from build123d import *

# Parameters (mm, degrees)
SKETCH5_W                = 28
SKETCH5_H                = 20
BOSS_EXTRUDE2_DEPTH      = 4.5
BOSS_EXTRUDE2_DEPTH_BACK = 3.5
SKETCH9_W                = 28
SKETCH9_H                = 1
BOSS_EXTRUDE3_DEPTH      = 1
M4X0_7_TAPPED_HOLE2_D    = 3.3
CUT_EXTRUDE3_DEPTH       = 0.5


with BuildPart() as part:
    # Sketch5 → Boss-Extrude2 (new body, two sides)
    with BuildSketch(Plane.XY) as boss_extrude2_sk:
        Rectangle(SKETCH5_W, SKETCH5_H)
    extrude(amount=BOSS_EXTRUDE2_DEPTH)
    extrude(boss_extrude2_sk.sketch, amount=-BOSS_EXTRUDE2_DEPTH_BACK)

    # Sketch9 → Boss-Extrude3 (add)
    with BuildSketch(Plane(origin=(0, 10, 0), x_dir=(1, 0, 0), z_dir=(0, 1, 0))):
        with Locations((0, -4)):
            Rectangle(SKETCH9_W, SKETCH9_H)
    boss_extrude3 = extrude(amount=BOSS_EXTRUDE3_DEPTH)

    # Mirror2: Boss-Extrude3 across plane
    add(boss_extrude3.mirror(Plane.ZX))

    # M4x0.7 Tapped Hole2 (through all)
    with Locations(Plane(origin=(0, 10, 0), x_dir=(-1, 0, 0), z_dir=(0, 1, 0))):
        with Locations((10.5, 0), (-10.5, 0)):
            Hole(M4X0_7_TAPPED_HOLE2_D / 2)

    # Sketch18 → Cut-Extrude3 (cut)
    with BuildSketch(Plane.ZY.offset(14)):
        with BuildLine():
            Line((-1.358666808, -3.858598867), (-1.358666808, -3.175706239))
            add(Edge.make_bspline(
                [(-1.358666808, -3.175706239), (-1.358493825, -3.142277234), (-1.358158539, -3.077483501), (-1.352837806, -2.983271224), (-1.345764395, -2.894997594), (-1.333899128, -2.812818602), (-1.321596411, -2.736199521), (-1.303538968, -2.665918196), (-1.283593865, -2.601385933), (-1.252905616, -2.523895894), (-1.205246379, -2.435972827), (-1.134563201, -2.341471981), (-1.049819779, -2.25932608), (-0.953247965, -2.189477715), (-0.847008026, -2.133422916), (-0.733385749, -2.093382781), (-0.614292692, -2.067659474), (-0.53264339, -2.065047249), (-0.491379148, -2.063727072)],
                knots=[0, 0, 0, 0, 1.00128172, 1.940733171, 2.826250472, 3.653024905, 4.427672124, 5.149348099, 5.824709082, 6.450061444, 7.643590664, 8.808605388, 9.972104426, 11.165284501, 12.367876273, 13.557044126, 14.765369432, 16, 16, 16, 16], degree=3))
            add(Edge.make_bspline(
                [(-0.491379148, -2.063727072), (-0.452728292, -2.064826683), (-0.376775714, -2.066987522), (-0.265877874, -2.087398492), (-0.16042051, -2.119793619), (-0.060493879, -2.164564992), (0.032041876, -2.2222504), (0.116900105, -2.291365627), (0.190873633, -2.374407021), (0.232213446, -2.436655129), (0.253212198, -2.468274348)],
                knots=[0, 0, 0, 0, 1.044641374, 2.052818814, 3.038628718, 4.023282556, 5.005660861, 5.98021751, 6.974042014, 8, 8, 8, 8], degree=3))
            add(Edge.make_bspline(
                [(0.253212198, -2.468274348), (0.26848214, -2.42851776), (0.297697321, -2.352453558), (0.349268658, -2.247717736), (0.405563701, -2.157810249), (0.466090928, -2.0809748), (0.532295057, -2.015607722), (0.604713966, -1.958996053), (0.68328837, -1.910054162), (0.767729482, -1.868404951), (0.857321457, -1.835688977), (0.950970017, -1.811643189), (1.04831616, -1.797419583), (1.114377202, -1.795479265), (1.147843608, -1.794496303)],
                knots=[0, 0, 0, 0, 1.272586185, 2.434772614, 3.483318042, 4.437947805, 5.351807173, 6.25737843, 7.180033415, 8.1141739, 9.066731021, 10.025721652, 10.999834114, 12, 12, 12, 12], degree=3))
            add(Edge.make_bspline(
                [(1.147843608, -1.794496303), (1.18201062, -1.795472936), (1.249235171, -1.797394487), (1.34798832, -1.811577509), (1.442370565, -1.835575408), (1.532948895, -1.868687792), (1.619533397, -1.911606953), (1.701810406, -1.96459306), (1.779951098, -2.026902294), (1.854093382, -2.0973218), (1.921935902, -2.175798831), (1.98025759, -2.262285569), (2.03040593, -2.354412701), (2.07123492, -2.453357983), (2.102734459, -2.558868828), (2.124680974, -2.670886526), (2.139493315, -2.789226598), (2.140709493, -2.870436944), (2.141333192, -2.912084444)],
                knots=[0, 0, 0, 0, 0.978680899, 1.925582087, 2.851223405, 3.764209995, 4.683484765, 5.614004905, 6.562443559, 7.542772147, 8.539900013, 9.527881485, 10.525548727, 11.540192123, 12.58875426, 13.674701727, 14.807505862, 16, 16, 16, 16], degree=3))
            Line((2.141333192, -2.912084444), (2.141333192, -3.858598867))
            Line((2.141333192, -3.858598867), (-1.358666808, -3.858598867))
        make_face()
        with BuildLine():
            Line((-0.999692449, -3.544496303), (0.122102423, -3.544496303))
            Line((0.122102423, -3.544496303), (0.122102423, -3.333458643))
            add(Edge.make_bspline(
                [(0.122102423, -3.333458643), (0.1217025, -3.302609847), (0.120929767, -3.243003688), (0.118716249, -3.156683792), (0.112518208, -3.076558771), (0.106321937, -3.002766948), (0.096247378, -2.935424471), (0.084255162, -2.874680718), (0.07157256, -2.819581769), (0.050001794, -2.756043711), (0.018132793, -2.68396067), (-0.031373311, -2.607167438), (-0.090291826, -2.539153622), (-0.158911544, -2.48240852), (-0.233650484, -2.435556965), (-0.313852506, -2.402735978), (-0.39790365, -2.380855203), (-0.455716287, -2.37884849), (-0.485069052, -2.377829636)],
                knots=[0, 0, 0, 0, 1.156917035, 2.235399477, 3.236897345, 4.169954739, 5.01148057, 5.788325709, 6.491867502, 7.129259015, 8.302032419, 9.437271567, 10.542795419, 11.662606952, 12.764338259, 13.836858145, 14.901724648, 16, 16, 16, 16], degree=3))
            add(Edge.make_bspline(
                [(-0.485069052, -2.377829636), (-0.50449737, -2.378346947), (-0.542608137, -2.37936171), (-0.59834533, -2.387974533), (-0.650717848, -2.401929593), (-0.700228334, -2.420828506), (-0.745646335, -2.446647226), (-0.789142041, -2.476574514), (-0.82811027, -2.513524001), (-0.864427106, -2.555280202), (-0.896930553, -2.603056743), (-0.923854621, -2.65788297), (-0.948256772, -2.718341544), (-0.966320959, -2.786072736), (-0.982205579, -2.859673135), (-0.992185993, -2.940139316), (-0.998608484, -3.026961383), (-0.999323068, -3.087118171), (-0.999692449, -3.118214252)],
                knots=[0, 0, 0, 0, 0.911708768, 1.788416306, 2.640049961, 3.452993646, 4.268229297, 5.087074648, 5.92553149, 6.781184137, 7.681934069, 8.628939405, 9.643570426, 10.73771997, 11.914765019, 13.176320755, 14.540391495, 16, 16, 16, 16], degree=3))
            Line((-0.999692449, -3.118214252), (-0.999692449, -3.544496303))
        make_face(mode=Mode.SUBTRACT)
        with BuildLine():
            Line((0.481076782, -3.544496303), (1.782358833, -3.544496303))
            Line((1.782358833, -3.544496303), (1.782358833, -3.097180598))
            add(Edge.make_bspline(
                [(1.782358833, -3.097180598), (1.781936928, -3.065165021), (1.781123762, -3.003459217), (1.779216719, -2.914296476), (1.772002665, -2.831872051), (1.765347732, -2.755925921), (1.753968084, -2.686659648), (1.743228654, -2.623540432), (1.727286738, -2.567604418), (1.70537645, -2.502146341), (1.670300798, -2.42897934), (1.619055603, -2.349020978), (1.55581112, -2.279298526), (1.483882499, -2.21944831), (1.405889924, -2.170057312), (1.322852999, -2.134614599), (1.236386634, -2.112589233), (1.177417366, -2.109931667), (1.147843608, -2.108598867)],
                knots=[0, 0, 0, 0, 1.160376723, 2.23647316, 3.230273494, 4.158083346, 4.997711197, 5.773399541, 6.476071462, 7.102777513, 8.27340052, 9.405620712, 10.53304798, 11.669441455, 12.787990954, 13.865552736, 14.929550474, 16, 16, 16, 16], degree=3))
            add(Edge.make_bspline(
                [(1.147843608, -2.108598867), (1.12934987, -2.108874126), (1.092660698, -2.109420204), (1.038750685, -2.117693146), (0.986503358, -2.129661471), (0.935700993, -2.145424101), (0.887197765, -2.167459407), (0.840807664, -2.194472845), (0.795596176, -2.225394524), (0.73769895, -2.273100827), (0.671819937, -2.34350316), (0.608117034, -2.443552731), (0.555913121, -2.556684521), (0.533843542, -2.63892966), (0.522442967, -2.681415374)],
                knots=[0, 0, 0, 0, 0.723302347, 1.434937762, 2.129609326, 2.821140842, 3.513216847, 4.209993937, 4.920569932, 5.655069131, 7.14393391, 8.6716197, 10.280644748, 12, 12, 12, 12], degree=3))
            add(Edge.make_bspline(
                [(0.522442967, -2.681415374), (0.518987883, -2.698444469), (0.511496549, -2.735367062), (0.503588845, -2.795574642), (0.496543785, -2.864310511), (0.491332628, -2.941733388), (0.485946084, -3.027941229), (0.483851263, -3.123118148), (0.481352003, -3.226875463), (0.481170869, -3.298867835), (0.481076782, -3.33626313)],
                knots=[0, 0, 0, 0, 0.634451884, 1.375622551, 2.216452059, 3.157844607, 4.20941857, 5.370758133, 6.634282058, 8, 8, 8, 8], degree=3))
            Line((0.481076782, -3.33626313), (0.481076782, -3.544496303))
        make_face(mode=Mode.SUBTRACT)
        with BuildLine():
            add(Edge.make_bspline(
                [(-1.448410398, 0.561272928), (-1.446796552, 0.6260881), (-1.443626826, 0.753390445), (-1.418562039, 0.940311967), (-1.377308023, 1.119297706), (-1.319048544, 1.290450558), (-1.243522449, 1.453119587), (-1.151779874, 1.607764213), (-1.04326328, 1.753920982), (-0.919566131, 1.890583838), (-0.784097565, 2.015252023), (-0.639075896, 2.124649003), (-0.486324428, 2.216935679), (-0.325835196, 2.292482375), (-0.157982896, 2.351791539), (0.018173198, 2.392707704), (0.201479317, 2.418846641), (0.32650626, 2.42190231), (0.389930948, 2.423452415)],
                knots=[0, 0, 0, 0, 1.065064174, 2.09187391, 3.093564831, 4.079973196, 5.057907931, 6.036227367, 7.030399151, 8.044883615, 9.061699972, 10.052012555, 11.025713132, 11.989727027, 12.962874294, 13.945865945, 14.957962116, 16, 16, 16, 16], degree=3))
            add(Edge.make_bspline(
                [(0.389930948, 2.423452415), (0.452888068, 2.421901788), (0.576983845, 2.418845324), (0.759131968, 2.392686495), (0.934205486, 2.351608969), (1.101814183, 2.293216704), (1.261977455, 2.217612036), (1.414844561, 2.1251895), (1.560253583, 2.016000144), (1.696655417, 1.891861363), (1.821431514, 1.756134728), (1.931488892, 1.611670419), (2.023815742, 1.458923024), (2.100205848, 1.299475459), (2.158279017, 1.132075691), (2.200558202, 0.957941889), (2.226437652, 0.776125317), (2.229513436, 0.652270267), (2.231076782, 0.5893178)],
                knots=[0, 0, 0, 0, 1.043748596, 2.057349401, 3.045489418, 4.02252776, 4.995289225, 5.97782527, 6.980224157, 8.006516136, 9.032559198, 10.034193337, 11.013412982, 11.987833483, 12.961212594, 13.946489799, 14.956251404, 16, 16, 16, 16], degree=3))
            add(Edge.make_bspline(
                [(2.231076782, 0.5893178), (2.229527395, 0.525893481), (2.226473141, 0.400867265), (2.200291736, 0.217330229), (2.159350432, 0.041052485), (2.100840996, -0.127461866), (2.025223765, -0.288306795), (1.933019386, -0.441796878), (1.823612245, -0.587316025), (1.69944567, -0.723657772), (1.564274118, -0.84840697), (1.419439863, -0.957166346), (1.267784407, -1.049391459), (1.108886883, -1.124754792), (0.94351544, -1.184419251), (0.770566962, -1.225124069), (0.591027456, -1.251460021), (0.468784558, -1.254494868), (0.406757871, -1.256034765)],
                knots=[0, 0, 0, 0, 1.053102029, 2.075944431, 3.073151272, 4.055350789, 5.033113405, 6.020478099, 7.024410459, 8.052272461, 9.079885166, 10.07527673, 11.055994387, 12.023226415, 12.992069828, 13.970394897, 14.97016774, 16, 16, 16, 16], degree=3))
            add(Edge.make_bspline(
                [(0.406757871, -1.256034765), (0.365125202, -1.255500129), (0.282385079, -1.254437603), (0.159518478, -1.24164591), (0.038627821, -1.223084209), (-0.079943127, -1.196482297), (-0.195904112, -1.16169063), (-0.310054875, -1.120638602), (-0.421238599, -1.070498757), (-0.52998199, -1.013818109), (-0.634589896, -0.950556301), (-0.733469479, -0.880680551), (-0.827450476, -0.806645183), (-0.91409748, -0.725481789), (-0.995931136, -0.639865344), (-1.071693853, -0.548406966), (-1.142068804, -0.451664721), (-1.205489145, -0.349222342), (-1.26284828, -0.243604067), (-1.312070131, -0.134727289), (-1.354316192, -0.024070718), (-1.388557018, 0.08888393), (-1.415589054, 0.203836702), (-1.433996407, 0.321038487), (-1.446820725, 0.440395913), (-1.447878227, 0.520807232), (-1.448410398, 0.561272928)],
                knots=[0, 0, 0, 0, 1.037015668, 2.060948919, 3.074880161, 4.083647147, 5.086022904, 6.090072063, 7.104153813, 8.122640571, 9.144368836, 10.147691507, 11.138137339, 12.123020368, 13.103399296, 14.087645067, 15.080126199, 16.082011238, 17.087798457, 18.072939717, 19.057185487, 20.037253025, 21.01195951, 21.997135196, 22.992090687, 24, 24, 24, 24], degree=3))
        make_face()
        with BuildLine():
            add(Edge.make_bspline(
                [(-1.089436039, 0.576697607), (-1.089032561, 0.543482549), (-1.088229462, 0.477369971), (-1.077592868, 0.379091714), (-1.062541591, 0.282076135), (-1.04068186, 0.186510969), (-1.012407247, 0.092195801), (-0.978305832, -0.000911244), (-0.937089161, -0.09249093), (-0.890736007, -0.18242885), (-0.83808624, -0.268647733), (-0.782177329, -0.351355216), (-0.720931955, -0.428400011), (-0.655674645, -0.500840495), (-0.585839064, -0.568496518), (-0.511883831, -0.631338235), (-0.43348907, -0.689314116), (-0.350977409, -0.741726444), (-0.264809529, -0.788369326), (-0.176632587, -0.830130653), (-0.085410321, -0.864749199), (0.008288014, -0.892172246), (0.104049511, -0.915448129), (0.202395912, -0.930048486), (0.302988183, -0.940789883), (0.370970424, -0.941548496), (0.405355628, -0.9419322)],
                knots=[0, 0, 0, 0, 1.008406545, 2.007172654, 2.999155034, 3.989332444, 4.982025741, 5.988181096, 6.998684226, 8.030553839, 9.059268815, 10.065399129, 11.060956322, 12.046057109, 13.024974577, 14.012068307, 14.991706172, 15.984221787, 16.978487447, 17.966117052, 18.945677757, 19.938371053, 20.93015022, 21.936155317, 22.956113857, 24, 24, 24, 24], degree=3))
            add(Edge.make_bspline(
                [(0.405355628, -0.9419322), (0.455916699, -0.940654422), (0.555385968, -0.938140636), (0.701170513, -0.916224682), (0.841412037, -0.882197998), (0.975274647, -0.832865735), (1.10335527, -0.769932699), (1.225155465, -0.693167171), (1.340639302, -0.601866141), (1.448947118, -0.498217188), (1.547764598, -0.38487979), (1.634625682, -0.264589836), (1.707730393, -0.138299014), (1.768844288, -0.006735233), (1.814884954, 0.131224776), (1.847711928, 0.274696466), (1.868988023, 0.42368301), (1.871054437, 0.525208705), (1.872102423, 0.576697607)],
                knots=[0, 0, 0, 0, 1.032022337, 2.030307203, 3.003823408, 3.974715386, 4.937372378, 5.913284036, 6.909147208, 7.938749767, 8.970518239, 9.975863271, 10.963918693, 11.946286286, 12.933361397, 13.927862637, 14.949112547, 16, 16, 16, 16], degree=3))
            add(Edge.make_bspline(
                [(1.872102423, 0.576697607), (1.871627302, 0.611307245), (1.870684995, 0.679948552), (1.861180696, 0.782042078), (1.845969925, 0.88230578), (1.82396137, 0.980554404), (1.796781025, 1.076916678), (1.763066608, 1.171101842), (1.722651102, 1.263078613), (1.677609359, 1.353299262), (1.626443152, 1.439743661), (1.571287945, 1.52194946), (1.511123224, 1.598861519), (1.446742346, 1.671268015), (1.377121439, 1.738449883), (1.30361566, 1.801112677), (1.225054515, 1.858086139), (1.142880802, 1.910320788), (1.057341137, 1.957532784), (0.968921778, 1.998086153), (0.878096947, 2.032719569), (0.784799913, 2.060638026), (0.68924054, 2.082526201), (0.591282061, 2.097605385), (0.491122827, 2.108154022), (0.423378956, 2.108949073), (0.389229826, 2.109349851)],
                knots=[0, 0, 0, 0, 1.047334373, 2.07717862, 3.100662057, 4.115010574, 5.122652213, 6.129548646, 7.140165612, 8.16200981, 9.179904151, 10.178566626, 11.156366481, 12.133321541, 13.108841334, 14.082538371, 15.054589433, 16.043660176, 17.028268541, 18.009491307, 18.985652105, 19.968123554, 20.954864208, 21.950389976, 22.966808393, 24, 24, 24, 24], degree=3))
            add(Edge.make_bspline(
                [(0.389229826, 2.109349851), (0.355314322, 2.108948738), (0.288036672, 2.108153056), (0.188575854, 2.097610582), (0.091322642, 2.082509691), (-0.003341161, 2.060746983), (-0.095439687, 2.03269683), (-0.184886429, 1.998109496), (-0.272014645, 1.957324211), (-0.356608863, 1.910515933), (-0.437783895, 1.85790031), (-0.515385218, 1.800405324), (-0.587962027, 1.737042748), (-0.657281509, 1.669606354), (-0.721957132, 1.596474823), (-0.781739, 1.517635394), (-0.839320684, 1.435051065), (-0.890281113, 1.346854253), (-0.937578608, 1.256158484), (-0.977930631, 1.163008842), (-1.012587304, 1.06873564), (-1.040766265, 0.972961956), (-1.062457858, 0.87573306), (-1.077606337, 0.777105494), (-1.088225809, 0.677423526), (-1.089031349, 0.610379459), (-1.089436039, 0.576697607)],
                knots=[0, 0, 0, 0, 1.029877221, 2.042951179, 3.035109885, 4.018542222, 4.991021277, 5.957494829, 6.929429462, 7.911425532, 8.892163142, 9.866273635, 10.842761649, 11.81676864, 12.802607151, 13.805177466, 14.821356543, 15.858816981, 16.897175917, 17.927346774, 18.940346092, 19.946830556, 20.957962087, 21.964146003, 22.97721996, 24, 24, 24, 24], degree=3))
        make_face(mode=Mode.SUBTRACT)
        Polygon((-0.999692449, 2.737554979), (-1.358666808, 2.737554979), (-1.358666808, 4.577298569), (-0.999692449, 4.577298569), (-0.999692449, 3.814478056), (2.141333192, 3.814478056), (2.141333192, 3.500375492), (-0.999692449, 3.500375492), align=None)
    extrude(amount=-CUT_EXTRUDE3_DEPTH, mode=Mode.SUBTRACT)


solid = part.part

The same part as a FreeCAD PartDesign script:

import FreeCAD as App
import Part
import Sketcher


def add_polygon(sketch, points):
    """Adds a closed chain of lines whose ends are joined by coincident constraints."""
    first, n = sketch.GeometryCount, len(points)
    for a, b in zip(points, points[1:] + points[:1]):
        sketch.addGeometry(Part.LineSegment(App.Vector(*a, 0), App.Vector(*b, 0)), False)
    for i in range(n):
        sketch.addConstraint(Sketcher.Constraint("Coincident", first + i, 2, first + (i + 1) % n, 1))

doc = App.newDocument("Part")
body = doc.addObject("PartDesign::Body", "Body")

# Sketch on XY plane
sketch1 = body.newObject("Sketcher::SketchObject", "Sketch")
sketch1.AttachmentSupport = (doc.getObject("XY_Plane"), [""])
sketch1.MapMode = "FlatFace"
add_polygon(sketch1, [(-14, 10), (-14, -10), (14, -10), (14, 10)])  # lines 0-3
sketch1.addConstraint([
    Sketcher.Constraint("Vertical", 0),
    Sketcher.Constraint("Horizontal", 1),
    Sketcher.Constraint("Vertical", 2),
    Sketcher.Constraint("Horizontal", 3),
    Sketcher.Constraint("Symmetric", 0, 2, 2, 2, -1, 1),
    Sketcher.Constraint("DistanceX", 1, 1, 1, 2, 28.0),
    Sketcher.Constraint("DistanceY", 0, 2, 0, 1, 20.0),
])
pad1 = body.newObject("PartDesign::Pad", "Pad")
pad1.Profile = sketch1
pad1.Type = "TwoLengths"
pad1.Length = 4.5
pad1.Length2 = 3.5

# Sketch on XZ plane
sketch2 = body.newObject("Sketcher::SketchObject", "Sketch001")
sketch2.AttachmentSupport = (doc.getObject("XZ_Plane"), [""])
sketch2.MapMode = "FlatFace"
sketch2.AttachmentOffset = App.Placement(App.Vector(0, 0, -10), App.Rotation())
add_polygon(sketch2, [(-14, 3.5), (-14, 4.5), (14, 4.5), (14, 3.5)])  # lines 0-3
sketch2.addConstraint([
    Sketcher.Constraint("Vertical", 0),
    Sketcher.Constraint("Horizontal", 1),
    Sketcher.Constraint("Vertical", 2),
    Sketcher.Constraint("Horizontal", 3),
    Sketcher.Constraint("DistanceX", 1, 1, 1, 2, 28.0),
    Sketcher.Constraint("DistanceY", 0, 1, 0, 2, 1.0),
    Sketcher.Constraint("DistanceX", 0, 2, -1, 1, 14.0),
    Sketcher.Constraint("DistanceY", -1, 1, 0, 2, 4.5),
])
pad2 = body.newObject("PartDesign::Pad", "Pad001")
pad2.Profile = sketch2
pad2.Length = 1
pad2.Reversed = True
doc.recompute()

mirrored = body.newObject("PartDesign::Mirrored", "Mirrored")
mirrored.Originals = [pad2]
mirrored.MirrorPlane = (doc.getObject("XZ_Plane"), [""])
body.Tip = mirrored

# Sketch on XZ plane
sketch3 = body.newObject("Sketcher::SketchObject", "Sketch002")
sketch3.AttachmentSupport = (doc.getObject("XZ_Plane"), [""])
sketch3.MapMode = "FlatFace"
sketch3.AttachmentOffset = App.Placement(App.Vector(0, 0, -10), App.Rotation())
sketch3.addGeometry([
    Part.Circle(App.Vector(-10.5, 0, 0), App.Vector(0, 0, 1), 1.6),
    Part.Circle(App.Vector(10.5, 0, 0), App.Vector(0, 0, 1), 1.6),
], False)
sketch3.addConstraint([
    Sketcher.Constraint("Equal", 0, 1),
    Sketcher.Constraint("Symmetric", 0, 3, 1, 3, -1, 1),
    Sketcher.Constraint("PointOnObject", 0, 3, -1),
    Sketcher.Constraint("Diameter", 0, 3.3),
    Sketcher.Constraint("DistanceX", 0, 3, 1, 3, 21.0),
])
doc.recompute()
hole = body.newObject("PartDesign::Hole", "Hole")
hole.Profile = sketch3
hole.ThreadType = "None"
hole.Diameter = 3.3
hole.DepthType = "ThroughAll"
hole.Reversed = True

# Sketch on YZ plane
sketch4 = body.newObject("Sketcher::SketchObject", "Sketch003")
sketch4.AttachmentSupport = (doc.getObject("YZ_Plane"), [""])
sketch4.MapMode = "FlatFace"
sketch4.AttachmentOffset = App.Placement(App.Vector(0, 0, -14), App.Rotation())
sketch4.addGeometry(Part.LineSegment(App.Vector(-3.175706, -1.358667, 0), App.Vector(-3.858599, -1.358667, 0)), False)  # 0
sketch4.addGeometry(Part.LineSegment(App.Vector(-3.858599, -1.358667, 0), App.Vector(-3.858599, 2.141333, 0)), False)  # 1
sketch4.addGeometry(Part.LineSegment(App.Vector(-3.858599, 2.141333, 0), App.Vector(-2.912084, 2.141333, 0)), False)  # 2
sketch4.addGeometry(Part.BSplineCurve([App.Vector(-1.794496, 1.147844, 0), App.Vector(-1.795473, 1.182011, 0), App.Vector(-1.797394, 1.249235, 0), App.Vector(-1.811578, 1.347988, 0), App.Vector(-1.835575, 1.442371, 0), App.Vector(-1.868688, 1.532949, 0), App.Vector(-1.911607, 1.619533, 0), App.Vector(-1.964593, 1.70181, 0), App.Vector(-2.026902, 1.779951, 0), App.Vector(-2.097322, 1.854093, 0), App.Vector(-2.175799, 1.921936, 0), App.Vector(-2.262286, 1.980258, 0), App.Vector(-2.354413, 2.030406, 0), App.Vector(-2.453358, 2.071235, 0), App.Vector(-2.558869, 2.102734, 0), App.Vector(-2.670887, 2.124681, 0), App.Vector(-2.789227, 2.139493, 0), App.Vector(-2.870437, 2.140709, 0), App.Vector(-2.912084, 2.141333, 0)], [4, 1, 1, 1, 1, 1, 1, 1, 1, 1, 1, 1, 1, 1, 1, 1, 4], [0, 0.978680899, 1.925582087, 2.851223405, 3.764209995, 4.683484765, 5.614004905, 6.562443559, 7.542772147, 8.539900013, 9.527881485, 10.525548727, 11.540192123, 12.58875426, 13.674701727, 14.807505862, 16], False, 3, [1, 1, 1, 1, 1, 1, 1, 1, 1, 1, 1, 1, 1, 1, 1, 1, 1, 1, 1], False), False)  # 3
sketch4.addGeometry(Part.BSplineCurve([App.Vector(-2.468274, 0.253212, 0), App.Vector(-2.428518, 0.268482, 0), App.Vector(-2.352454, 0.297697, 0), App.Vector(-2.247718, 0.349269, 0), App.Vector(-2.15781, 0.405564, 0), App.Vector(-2.080975, 0.466091, 0), App.Vector(-2.015608, 0.532295, 0), App.Vector(-1.958996, 0.604714, 0), App.Vector(-1.910054, 0.683288, 0), App.Vector(-1.868405, 0.767729, 0), App.Vector(-1.835689, 0.857321, 0), App.Vector(-1.811643, 0.95097, 0), App.Vector(-1.79742, 1.048316, 0), App.Vector(-1.795479, 1.114377, 0), App.Vector(-1.794496, 1.147844, 0)], [4, 1, 1, 1, 1, 1, 1, 1, 1, 1, 1, 1, 4], [0, 1.272586185, 2.434772614, 3.483318042, 4.437947805, 5.351807173, 6.25737843, 7.180033415, 8.1141739, 9.066731021, 10.025721652, 10.999834114, 12], False, 3, [1, 1, 1, 1, 1, 1, 1, 1, 1, 1, 1, 1, 1, 1, 1], False), False)  # 4
sketch4.addGeometry(Part.BSplineCurve([App.Vector(-2.063727, -0.491379, 0), App.Vector(-2.064827, -0.452728, 0), App.Vector(-2.066988, -0.376776, 0), App.Vector(-2.087398, -0.265878, 0), App.Vector(-2.119794, -0.160421, 0), App.Vector(-2.164565, -0.060494, 0), App.Vector(-2.22225, 0.032042, 0), App.Vector(-2.291366, 0.1169, 0), App.Vector(-2.374407, 0.190874, 0), App.Vector(-2.436655, 0.232213, 0), App.Vector(-2.468274, 0.253212, 0)], [4, 1, 1, 1, 1, 1, 1, 1, 4], [0, 1.044641374, 2.052818814, 3.038628718, 4.023282556, 5.005660861, 5.98021751, 6.974042014, 8], False, 3, [1, 1, 1, 1, 1, 1, 1, 1, 1, 1, 1], False), False)  # 5
sketch4.addGeometry(Part.BSplineCurve([App.Vector(-3.175706, -1.358667, 0), App.Vector(-3.142277, -1.358494, 0), App.Vector(-3.077484, -1.358159, 0), App.Vector(-2.983271, -1.352838, 0), App.Vector(-2.894998, -1.345764, 0), App.Vector(-2.812819, -1.333899, 0), App.Vector(-2.7362, -1.321596, 0), App.Vector(-2.665918, -1.303539, 0), App.Vector(-2.601386, -1.283594, 0), App.Vector(-2.523896, -1.252906, 0), App.Vector(-2.435973, -1.205246, 0), App.Vector(-2.341472, -1.134563, 0), App.Vector(-2.259326, -1.04982, 0), App.Vector(-2.189478, -0.953248, 0), App.Vector(-2.133423, -0.847008, 0), App.Vector(-2.093383, -0.733386, 0), App.Vector(-2.067659, -0.614293, 0), App.Vector(-2.065047, -0.532643, 0), App.Vector(-2.063727, -0.491379, 0)], [4, 1, 1, 1, 1, 1, 1, 1, 1, 1, 1, 1, 1, 1, 1, 1, 4], [0, 1.00128172, 1.940733171, 2.826250472, 3.653024905, 4.427672124, 5.149348099, 5.824709082, 6.450061444, 7.643590664, 8.808605388, 9.972104426, 11.165284501, 12.367876273, 13.557044126, 14.765369432, 16], False, 3, [1, 1, 1, 1, 1, 1, 1, 1, 1, 1, 1, 1, 1, 1, 1, 1, 1, 1, 1], False), False)  # 6
sketch4.addGeometry(Part.LineSegment(App.Vector(-3.544496, -0.999692, 0), App.Vector(-3.118214, -0.999692, 0)), False)  # 7
sketch4.addGeometry(Part.BSplineCurve([App.Vector(-2.37783, -0.485069, 0), App.Vector(-2.378347, -0.504497, 0), App.Vector(-2.379362, -0.542608, 0), App.Vector(-2.387975, -0.598345, 0), App.Vector(-2.40193, -0.650718, 0), App.Vector(-2.420829, -0.700228, 0), App.Vector(-2.446647, -0.745646, 0), App.Vector(-2.476575, -0.789142, 0), App.Vector(-2.513524, -0.82811, 0), App.Vector(-2.55528, -0.864427, 0), App.Vector(-2.603057, -0.896931, 0), App.Vector(-2.657883, -0.923855, 0), App.Vector(-2.718342, -0.948257, 0), App.Vector(-2.786073, -0.966321, 0), App.Vector(-2.859673, -0.982206, 0), App.Vector(-2.940139, -0.992186, 0), App.Vector(-3.026961, -0.998608, 0), App.Vector(-3.087118, -0.999323, 0), App.Vector(-3.118214, -0.999692, 0)], [4, 1, 1, 1, 1, 1, 1, 1, 1, 1, 1, 1, 1, 1, 1, 1, 4], [0, 0.911708768, 1.788416306, 2.640049961, 3.452993646, 4.268229297, 5.087074648, 5.92553149, 6.781184137, 7.681934069, 8.628939405, 9.643570426, 10.73771997, 11.914765019, 13.176320755, 14.540391495, 16], False, 3, [1, 1, 1, 1, 1, 1, 1, 1, 1, 1, 1, 1, 1, 1, 1, 1, 1, 1, 1], False), False)  # 8
sketch4.addGeometry(Part.BSplineCurve([App.Vector(-3.333459, 0.122102, 0), App.Vector(-3.30261, 0.121703, 0), App.Vector(-3.243004, 0.12093, 0), App.Vector(-3.156684, 0.118716, 0), App.Vector(-3.076559, 0.112518, 0), App.Vector(-3.002767, 0.106322, 0), App.Vector(-2.935424, 0.096247, 0), App.Vector(-2.874681, 0.084255, 0), App.Vector(-2.819582, 0.071573, 0), App.Vector(-2.756044, 0.050002, 0), App.Vector(-2.683961, 0.018133, 0), App.Vector(-2.607167, -0.031373, 0), App.Vector(-2.539154, -0.090292, 0), App.Vector(-2.482409, -0.158912, 0), App.Vector(-2.435557, -0.23365, 0), App.Vector(-2.402736, -0.313853, 0), App.Vector(-2.380855, -0.397904, 0), App.Vector(-2.378848, -0.455716, 0), App.Vector(-2.37783, -0.485069, 0)], [4, 1, 1, 1, 1, 1, 1, 1, 1, 1, 1, 1, 1, 1, 1, 1, 4], [0, 1.156917035, 2.235399477, 3.236897345, 4.169954739, 5.01148057, 5.788325709, 6.491867502, 7.129259015, 8.302032419, 9.437271567, 10.542795419, 11.662606952, 12.764338259, 13.836858145, 14.901724648, 16], False, 3, [1, 1, 1, 1, 1, 1, 1, 1, 1, 1, 1, 1, 1, 1, 1, 1, 1, 1, 1], False), False)  # 9
sketch4.addGeometry(Part.LineSegment(App.Vector(-3.333459, 0.122102, 0), App.Vector(-3.544496, 0.122102, 0)), False)  # 10
sketch4.addGeometry(Part.LineSegment(App.Vector(-3.544496, 0.122102, 0), App.Vector(-3.544496, -0.999692, 0)), False)  # 11
sketch4.addGeometry(Part.LineSegment(App.Vector(-3.544496, 0.481077, 0), App.Vector(-3.336263, 0.481077, 0)), False)  # 12
sketch4.addGeometry(Part.BSplineCurve([App.Vector(-2.681415, 0.522443, 0), App.Vector(-2.698444, 0.518988, 0), App.Vector(-2.735367, 0.511497, 0), App.Vector(-2.795575, 0.503589, 0), App.Vector(-2.864311, 0.496544, 0), App.Vector(-2.941733, 0.491333, 0), App.Vector(-3.027941, 0.485946, 0), App.Vector(-3.123118, 0.483851, 0), App.Vector(-3.226875, 0.481352, 0), App.Vector(-3.298868, 0.481171, 0), App.Vector(-3.336263, 0.481077, 0)], [4, 1, 1, 1, 1, 1, 1, 1, 4], [0, 0.634451884, 1.375622551, 2.216452059, 3.157844607, 4.20941857, 5.370758133, 6.634282058, 8], False, 3, [1, 1, 1, 1, 1, 1, 1, 1, 1, 1, 1], False), False)  # 13
sketch4.addGeometry(Part.BSplineCurve([App.Vector(-2.108599, 1.147844, 0), App.Vector(-2.108874, 1.12935, 0), App.Vector(-2.10942, 1.092661, 0), App.Vector(-2.117693, 1.038751, 0), App.Vector(-2.129661, 0.986503, 0), App.Vector(-2.145424, 0.935701, 0), App.Vector(-2.167459, 0.887198, 0), App.Vector(-2.194473, 0.840808, 0), App.Vector(-2.225395, 0.795596, 0), App.Vector(-2.273101, 0.737699, 0), App.Vector(-2.343503, 0.67182, 0), App.Vector(-2.443553, 0.608117, 0), App.Vector(-2.556685, 0.555913, 0), App.Vector(-2.63893, 0.533844, 0), App.Vector(-2.681415, 0.522443, 0)], [4, 1, 1, 1, 1, 1, 1, 1, 1, 1, 1, 1, 4], [0, 0.723302347, 1.434937762, 2.129609326, 2.821140842, 3.513216847, 4.209993937, 4.920569932, 5.655069131, 7.14393391, 8.6716197, 10.280644748, 12], False, 3, [1, 1, 1, 1, 1, 1, 1, 1, 1, 1, 1, 1, 1, 1, 1], False), False)  # 14
sketch4.addGeometry(Part.BSplineCurve([App.Vector(-3.097181, 1.782359, 0), App.Vector(-3.065165, 1.781937, 0), App.Vector(-3.003459, 1.781124, 0), App.Vector(-2.914296, 1.779217, 0), App.Vector(-2.831872, 1.772003, 0), App.Vector(-2.755926, 1.765348, 0), App.Vector(-2.68666, 1.753968, 0), App.Vector(-2.62354, 1.743229, 0), App.Vector(-2.567604, 1.727287, 0), App.Vector(-2.502146, 1.705376, 0), App.Vector(-2.428979, 1.670301, 0), App.Vector(-2.349021, 1.619056, 0), App.Vector(-2.279299, 1.555811, 0), App.Vector(-2.219448, 1.483882, 0), App.Vector(-2.170057, 1.40589, 0), App.Vector(-2.134615, 1.322853, 0), App.Vector(-2.112589, 1.236387, 0), App.Vector(-2.109932, 1.177417, 0), App.Vector(-2.108599, 1.147844, 0)], [4, 1, 1, 1, 1, 1, 1, 1, 1, 1, 1, 1, 1, 1, 1, 1, 4], [0, 1.160376723, 2.23647316, 3.230273494, 4.158083346, 4.997711197, 5.773399541, 6.476071462, 7.102777513, 8.27340052, 9.405620712, 10.53304798, 11.669441455, 12.787990954, 13.865552736, 14.929550474, 16], False, 3, [1, 1, 1, 1, 1, 1, 1, 1, 1, 1, 1, 1, 1, 1, 1, 1, 1, 1, 1], False), False)  # 15
sketch4.addGeometry(Part.LineSegment(App.Vector(-3.097181, 1.782359, 0), App.Vector(-3.544496, 1.782359, 0)), False)  # 16
sketch4.addGeometry(Part.LineSegment(App.Vector(-3.544496, 1.782359, 0), App.Vector(-3.544496, 0.481077, 0)), False)  # 17
sketch4.addGeometry(Part.BSplineCurve([App.Vector(0.561273, -1.44841, 0), App.Vector(0.626088, -1.446797, 0), App.Vector(0.75339, -1.443627, 0), App.Vector(0.940312, -1.418562, 0), App.Vector(1.119298, -1.377308, 0), App.Vector(1.290451, -1.319049, 0), App.Vector(1.45312, -1.243522, 0), App.Vector(1.607764, -1.15178, 0), App.Vector(1.753921, -1.043263, 0), App.Vector(1.890584, -0.919566, 0), App.Vector(2.015252, -0.784098, 0), App.Vector(2.124649, -0.639076, 0), App.Vector(2.216936, -0.486324, 0), App.Vector(2.292482, -0.325835, 0), App.Vector(2.351792, -0.157983, 0), App.Vector(2.392708, 0.018173, 0), App.Vector(2.418847, 0.201479, 0), App.Vector(2.421902, 0.326506, 0), App.Vector(2.423452, 0.389931, 0)], [4, 1, 1, 1, 1, 1, 1, 1, 1, 1, 1, 1, 1, 1, 1, 1, 4], [0, 1.065064174, 2.09187391, 3.093564831, 4.079973196, 5.057907931, 6.036227367, 7.030399151, 8.044883615, 9.061699972, 10.052012555, 11.025713132, 11.989727027, 12.962874294, 13.945865945, 14.957962116, 16], False, 3, [1, 1, 1, 1, 1, 1, 1, 1, 1, 1, 1, 1, 1, 1, 1, 1, 1, 1, 1], False), False)  # 18
sketch4.addGeometry(Part.BSplineCurve([App.Vector(-1.256035, 0.406758, 0), App.Vector(-1.2555, 0.365125, 0), App.Vector(-1.254438, 0.282385, 0), App.Vector(-1.241646, 0.159518, 0), App.Vector(-1.223084, 0.038628, 0), App.Vector(-1.196482, -0.079943, 0), App.Vector(-1.161691, -0.195904, 0), App.Vector(-1.120639, -0.310055, 0), App.Vector(-1.070499, -0.421239, 0), App.Vector(-1.013818, -0.529982, 0), App.Vector(-0.950556, -0.63459, 0), App.Vector(-0.880681, -0.733469, 0), App.Vector(-0.806645, -0.82745, 0), App.Vector(-0.725482, -0.914097, 0), App.Vector(-0.639865, -0.995931, 0), App.Vector(-0.548407, -1.071694, 0), App.Vector(-0.451665, -1.142069, 0), App.Vector(-0.349222, -1.205489, 0), App.Vector(-0.243604, -1.262848, 0), App.Vector(-0.134727, -1.31207, 0), App.Vector(-0.024071, -1.354316, 0), App.Vector(0.088884, -1.388557, 0), App.Vector(0.203837, -1.415589, 0), App.Vector(0.321038, -1.433996, 0), App.Vector(0.440396, -1.446821, 0), App.Vector(0.520807, -1.447878, 0), App.Vector(0.561273, -1.44841, 0)], [4, 1, 1, 1, 1, 1, 1, 1, 1, 1, 1, 1, 1, 1, 1, 1, 1, 1, 1, 1, 1, 1, 1, 1, 4], [0, 1.037015668, 2.060948919, 3.074880161, 4.083647147, 5.086022904, 6.090072063, 7.104153813, 8.122640571, 9.144368836, 10.147691507, 11.138137339, 12.123020368, 13.103399296, 14.087645067, 15.080126199, 16.082011238, 17.087798457, 18.072939717, 19.057185487, 20.037253025, 21.01195951, 21.997135196, 22.992090687, 24], False, 3, [1, 1, 1, 1, 1, 1, 1, 1, 1, 1, 1, 1, 1, 1, 1, 1, 1, 1, 1, 1, 1, 1, 1, 1, 1, 1, 1], False), False)  # 19
sketch4.addGeometry(Part.BSplineCurve([App.Vector(0.589318, 2.231077, 0), App.Vector(0.525893, 2.229527, 0), App.Vector(0.400867, 2.226473, 0), App.Vector(0.21733, 2.200292, 0), App.Vector(0.041052, 2.15935, 0), App.Vector(-0.127462, 2.100841, 0), App.Vector(-0.288307, 2.025224, 0), App.Vector(-0.441797, 1.933019, 0), App.Vector(-0.587316, 1.823612, 0), App.Vector(-0.723658, 1.699446, 0), App.Vector(-0.848407, 1.564274, 0), App.Vector(-0.957166, 1.41944, 0), App.Vector(-1.049391, 1.267784, 0), App.Vector(-1.124755, 1.108887, 0), App.Vector(-1.184419, 0.943515, 0), App.Vector(-1.225124, 0.770567, 0), App.Vector(-1.25146, 0.591027, 0), App.Vector(-1.254495, 0.468785, 0), App.Vector(-1.256035, 0.406758, 0)], [4, 1, 1, 1, 1, 1, 1, 1, 1, 1, 1, 1, 1, 1, 1, 1, 4], [0, 1.053102029, 2.075944431, 3.073151272, 4.055350789, 5.033113405, 6.020478099, 7.024410459, 8.052272461, 9.079885166, 10.07527673, 11.055994387, 12.023226415, 12.992069828, 13.970394897, 14.97016774, 16], False, 3, [1, 1, 1, 1, 1, 1, 1, 1, 1, 1, 1, 1, 1, 1, 1, 1, 1, 1, 1], False), False)  # 20
sketch4.addGeometry(Part.BSplineCurve([App.Vector(2.423452, 0.389931, 0), App.Vector(2.421902, 0.452888, 0), App.Vector(2.418845, 0.576984, 0), App.Vector(2.392686, 0.759132, 0), App.Vector(2.351609, 0.934205, 0), App.Vector(2.293217, 1.101814, 0), App.Vector(2.217612, 1.261977, 0), App.Vector(2.125189, 1.414845, 0), App.Vector(2.016, 1.560254, 0), App.Vector(1.891861, 1.696655, 0), App.Vector(1.756135, 1.821432, 0), App.Vector(1.61167, 1.931489, 0), App.Vector(1.458923, 2.023816, 0), App.Vector(1.299475, 2.100206, 0), App.Vector(1.132076, 2.158279, 0), App.Vector(0.957942, 2.200558, 0), App.Vector(0.776125, 2.226438, 0), App.Vector(0.65227, 2.229513, 0), App.Vector(0.589318, 2.231077, 0)], [4, 1, 1, 1, 1, 1, 1, 1, 1, 1, 1, 1, 1, 1, 1, 1, 4], [0, 1.043748596, 2.057349401, 3.045489418, 4.02252776, 4.995289225, 5.97782527, 6.980224157, 8.006516136, 9.032559198, 10.034193337, 11.013412982, 11.987833483, 12.961212594, 13.946489799, 14.956251404, 16], False, 3, [1, 1, 1, 1, 1, 1, 1, 1, 1, 1, 1, 1, 1, 1, 1, 1, 1, 1, 1], False), False)  # 21
sketch4.addGeometry(Part.BSplineCurve([App.Vector(2.10935, 0.38923, 0), App.Vector(2.108949, 0.355314, 0), App.Vector(2.108153, 0.288037, 0), App.Vector(2.097611, 0.188576, 0), App.Vector(2.08251, 0.091323, 0), App.Vector(2.060747, -0.003341, 0), App.Vector(2.032697, -0.09544, 0), App.Vector(1.998109, -0.184886, 0), App.Vector(1.957324, -0.272015, 0), App.Vector(1.910516, -0.356609, 0), App.Vector(1.8579, -0.437784, 0), App.Vector(1.800405, -0.515385, 0), App.Vector(1.737043, -0.587962, 0), App.Vector(1.669606, -0.657282, 0), App.Vector(1.596475, -0.721957, 0), App.Vector(1.517635, -0.781739, 0), App.Vector(1.435051, -0.839321, 0), App.Vector(1.346854, -0.890281, 0), App.Vector(1.256158, -0.937579, 0), App.Vector(1.163009, -0.977931, 0), App.Vector(1.068736, -1.012587, 0), App.Vector(0.972962, -1.040766, 0), App.Vector(0.875733, -1.062458, 0), App.Vector(0.777105, -1.077606, 0), App.Vector(0.677424, -1.088226, 0), App.Vector(0.610379, -1.089031, 0), App.Vector(0.576698, -1.089436, 0)], [4, 1, 1, 1, 1, 1, 1, 1, 1, 1, 1, 1, 1, 1, 1, 1, 1, 1, 1, 1, 1, 1, 1, 1, 4], [0, 1.029877221, 2.042951179, 3.035109885, 4.018542222, 4.991021277, 5.957494829, 6.929429462, 7.911425532, 8.892163142, 9.866273635, 10.842761649, 11.81676864, 12.802607151, 13.805177466, 14.821356543, 15.858816981, 16.897175917, 17.927346774, 18.940346092, 19.946830556, 20.957962087, 21.964146003, 22.97721996, 24], False, 3, [1, 1, 1, 1, 1, 1, 1, 1, 1, 1, 1, 1, 1, 1, 1, 1, 1, 1, 1, 1, 1, 1, 1, 1, 1, 1, 1], False), False)  # 22
sketch4.addGeometry(Part.BSplineCurve([App.Vector(0.576698, 1.872102, 0), App.Vector(0.611307, 1.871627, 0), App.Vector(0.679949, 1.870685, 0), App.Vector(0.782042, 1.861181, 0), App.Vector(0.882306, 1.84597, 0), App.Vector(0.980554, 1.823961, 0), App.Vector(1.076917, 1.796781, 0), App.Vector(1.171102, 1.763067, 0), App.Vector(1.263079, 1.722651, 0), App.Vector(1.353299, 1.677609, 0), App.Vector(1.439744, 1.626443, 0), App.Vector(1.521949, 1.571288, 0), App.Vector(1.598862, 1.511123, 0), App.Vector(1.671268, 1.446742, 0), App.Vector(1.73845, 1.377121, 0), App.Vector(1.801113, 1.303616, 0), App.Vector(1.858086, 1.225055, 0), App.Vector(1.910321, 1.142881, 0), App.Vector(1.957533, 1.057341, 0), App.Vector(1.998086, 0.968922, 0), App.Vector(2.03272, 0.878097, 0), App.Vector(2.060638, 0.7848, 0), App.Vector(2.082526, 0.689241, 0), App.Vector(2.097605, 0.591282, 0), App.Vector(2.108154, 0.491123, 0), App.Vector(2.108949, 0.423379, 0), App.Vector(2.10935, 0.38923, 0)], [4, 1, 1, 1, 1, 1, 1, 1, 1, 1, 1, 1, 1, 1, 1, 1, 1, 1, 1, 1, 1, 1, 1, 1, 4], [0, 1.047334373, 2.07717862, 3.100662057, 4.115010574, 5.122652213, 6.129548646, 7.140165612, 8.16200981, 9.179904151, 10.178566626, 11.156366481, 12.133321541, 13.108841334, 14.082538371, 15.054589433, 16.043660176, 17.028268541, 18.009491307, 18.985652105, 19.968123554, 20.954864208, 21.950389976, 22.966808393, 24], False, 3, [1, 1, 1, 1, 1, 1, 1, 1, 1, 1, 1, 1, 1, 1, 1, 1, 1, 1, 1, 1, 1, 1, 1, 1, 1, 1, 1], False), False)  # 23
sketch4.addGeometry(Part.BSplineCurve([App.Vector(-0.941932, 0.405356, 0), App.Vector(-0.940654, 0.455917, 0), App.Vector(-0.938141, 0.555386, 0), App.Vector(-0.916225, 0.701171, 0), App.Vector(-0.882198, 0.841412, 0), App.Vector(-0.832866, 0.975275, 0), App.Vector(-0.769933, 1.103355, 0), App.Vector(-0.693167, 1.225155, 0), App.Vector(-0.601866, 1.340639, 0), App.Vector(-0.498217, 1.448947, 0), App.Vector(-0.38488, 1.547765, 0), App.Vector(-0.26459, 1.634626, 0), App.Vector(-0.138299, 1.70773, 0), App.Vector(-0.006735, 1.768844, 0), App.Vector(0.131225, 1.814885, 0), App.Vector(0.274696, 1.847712, 0), App.Vector(0.423683, 1.868988, 0), App.Vector(0.525209, 1.871054, 0), App.Vector(0.576698, 1.872102, 0)], [4, 1, 1, 1, 1, 1, 1, 1, 1, 1, 1, 1, 1, 1, 1, 1, 4], [0, 1.032022337, 2.030307203, 3.003823408, 3.974715386, 4.937372378, 5.913284036, 6.909147208, 7.938749767, 8.970518239, 9.975863271, 10.963918693, 11.946286286, 12.933361397, 13.927862637, 14.949112547, 16], False, 3, [1, 1, 1, 1, 1, 1, 1, 1, 1, 1, 1, 1, 1, 1, 1, 1, 1, 1, 1], False), False)  # 24
sketch4.addGeometry(Part.BSplineCurve([App.Vector(0.576698, -1.089436, 0), App.Vector(0.543483, -1.089033, 0), App.Vector(0.47737, -1.088229, 0), App.Vector(0.379092, -1.077593, 0), App.Vector(0.282076, -1.062542, 0), App.Vector(0.186511, -1.040682, 0), App.Vector(0.092196, -1.012407, 0), App.Vector(-0.000911, -0.978306, 0), App.Vector(-0.092491, -0.937089, 0), App.Vector(-0.182429, -0.890736, 0), App.Vector(-0.268648, -0.838086, 0), App.Vector(-0.351355, -0.782177, 0), App.Vector(-0.4284, -0.720932, 0), App.Vector(-0.50084, -0.655675, 0), App.Vector(-0.568497, -0.585839, 0), App.Vector(-0.631338, -0.511884, 0), App.Vector(-0.689314, -0.433489, 0), App.Vector(-0.741726, -0.350977, 0), App.Vector(-0.788369, -0.26481, 0), App.Vector(-0.830131, -0.176633, 0), App.Vector(-0.864749, -0.08541, 0), App.Vector(-0.892172, 0.008288, 0), App.Vector(-0.915448, 0.10405, 0), App.Vector(-0.930048, 0.202396, 0), App.Vector(-0.94079, 0.302988, 0), App.Vector(-0.941548, 0.37097, 0), App.Vector(-0.941932, 0.405356, 0)], [4, 1, 1, 1, 1, 1, 1, 1, 1, 1, 1, 1, 1, 1, 1, 1, 1, 1, 1, 1, 1, 1, 1, 1, 4], [0, 1.008406545, 2.007172654, 2.999155034, 3.989332444, 4.982025741, 5.988181096, 6.998684226, 8.030553839, 9.059268815, 10.065399129, 11.060956322, 12.046057109, 13.024974577, 14.012068307, 14.991706172, 15.984221787, 16.978487447, 17.966117052, 18.945677757, 19.938371053, 20.93015022, 21.936155317, 22.956113857, 24], False, 3, [1, 1, 1, 1, 1, 1, 1, 1, 1, 1, 1, 1, 1, 1, 1, 1, 1, 1, 1, 1, 1, 1, 1, 1, 1, 1, 1], False), False)  # 25
add_polygon(sketch4, [(2.737555, -1.358667), (2.737555, -0.999692), (3.500375, -0.999692), (3.500375, 2.141333), (3.814478, 2.141333), (3.814478, -0.999692), (4.577299, -0.999692), (4.577299, -1.358667)])  # lines 26-33
sketch4.addConstraint([
    Sketcher.Constraint("Block", 3),
    Sketcher.Constraint("Block", 4),
    Sketcher.Constraint("Block", 5),
    Sketcher.Constraint("Block", 6),
    Sketcher.Constraint("Block", 8),
    Sketcher.Constraint("Block", 9),
    Sketcher.Constraint("Block", 13),
    Sketcher.Constraint("Block", 14),
    Sketcher.Constraint("Block", 15),
    Sketcher.Constraint("Block", 18),
    Sketcher.Constraint("Block", 19),
    Sketcher.Constraint("Block", 20),
    Sketcher.Constraint("Block", 21),
    Sketcher.Constraint("Block", 22),
    Sketcher.Constraint("Block", 23),
    Sketcher.Constraint("Block", 24),
    Sketcher.Constraint("Block", 25),
    Sketcher.Constraint("Coincident", 0, 2, 1, 1),
    Sketcher.Constraint("Coincident", 1, 2, 2, 1),
    Sketcher.Constraint("Coincident", 2, 2, 3, 2),
    Sketcher.Constraint("Coincident", 6, 1, 0, 1),
    Sketcher.Constraint("Coincident", 7, 2, 8, 2),
    Sketcher.Constraint("Coincident", 9, 1, 10, 1),
    Sketcher.Constraint("Coincident", 10, 2, 11, 1),
    Sketcher.Constraint("Coincident", 11, 2, 7, 1),
    Sketcher.Constraint("Coincident", 12, 2, 13, 2),
    Sketcher.Constraint("Coincident", 15, 1, 16, 1),
    Sketcher.Constraint("Coincident", 16, 2, 17, 1),
    Sketcher.Constraint("Coincident", 17, 2, 12, 1),
    Sketcher.Constraint("Horizontal", 0),
    Sketcher.Constraint("Vertical", 1),
    Sketcher.Constraint("Horizontal", 2),
    Sketcher.Constraint("Horizontal", 7),
    Sketcher.Constraint("Horizontal", 10),
    Sketcher.Constraint("Vertical", 11),
    Sketcher.Constraint("Horizontal", 12),
    Sketcher.Constraint("Horizontal", 16),
    Sketcher.Constraint("Vertical", 17),
    Sketcher.Constraint("Vertical", 26),
    Sketcher.Constraint("Horizontal", 27),
    Sketcher.Constraint("Vertical", 28),
    Sketcher.Constraint("Horizontal", 29),
    Sketcher.Constraint("Vertical", 30),
    Sketcher.Constraint("Horizontal", 31),
    Sketcher.Constraint("Vertical", 32),
    Sketcher.Constraint("Horizontal", 33),
    Sketcher.Constraint("Horizontal", 11, 2, 26, 2),
    Sketcher.Constraint("Horizontal", 2, 2, 28, 2),
    Sketcher.Constraint("Horizontal", 27, 2, 30, 2),
    Sketcher.Constraint("Horizontal", 0, 2, 32, 2),
    Sketcher.Constraint("Vertical", 11, 2, 16, 2),
    Sketcher.Constraint("Equal", 27, 31),
    Sketcher.Constraint("DistanceX", 27, 1, 27, 2, 0.762821),
    Sketcher.Constraint("DistanceX", 0, 2, -1, 1, 3.858599),
    Sketcher.Constraint("DistanceX", -1, 1, 31, 2, 4.577299),
    Sketcher.Constraint("DistanceX", 7, 1, 7, 2, 0.426282),
    Sketcher.Constraint("DistanceX", 29, 1, 29, 2, 0.314103),
])
pocket1 = body.newObject("PartDesign::Pocket", "Pocket")
pocket1.Profile = sketch4
pocket1.Length = 0.5
pocket1.Reversed = True

doc.recompute()
